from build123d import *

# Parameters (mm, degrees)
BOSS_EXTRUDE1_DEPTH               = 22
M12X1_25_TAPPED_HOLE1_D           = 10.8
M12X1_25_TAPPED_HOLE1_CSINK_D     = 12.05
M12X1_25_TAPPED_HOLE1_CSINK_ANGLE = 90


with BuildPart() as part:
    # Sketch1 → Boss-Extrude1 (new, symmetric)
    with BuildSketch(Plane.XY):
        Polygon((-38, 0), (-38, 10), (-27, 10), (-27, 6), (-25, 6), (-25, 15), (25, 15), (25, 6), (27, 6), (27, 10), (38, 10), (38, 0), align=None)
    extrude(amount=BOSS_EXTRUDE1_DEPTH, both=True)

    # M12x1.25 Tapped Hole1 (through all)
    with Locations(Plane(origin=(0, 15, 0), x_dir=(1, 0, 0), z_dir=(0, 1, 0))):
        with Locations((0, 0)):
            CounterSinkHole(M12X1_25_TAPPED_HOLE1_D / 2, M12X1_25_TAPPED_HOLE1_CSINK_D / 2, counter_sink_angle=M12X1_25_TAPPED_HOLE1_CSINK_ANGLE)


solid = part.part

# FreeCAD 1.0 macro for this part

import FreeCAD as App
import Part
import Sketcher
from FreeCAD import Vector


def add_polygon(sketch, points):
    """Adds a closed chain of lines whose ends are joined by coincident constraints."""
    first, n = sketch.GeometryCount, len(points)
    for a, b in zip(points, points[1:] + points[:1]):
        sketch.addGeometry(Part.LineSegment(App.Vector(*a, 0), App.Vector(*b, 0)), False)
    for i in range(n):
        sketch.addConstraint(Sketcher.Constraint("Coincident", first + i, 2, first + (i + 1) % n, 1))

doc = App.newDocument("Part")
body = doc.addObject("PartDesign::Body", "Body")

# Sketch on XY plane
sketch1 = doc.addObject("Sketcher::SketchObject", "Sketch")
body.addObject(sketch1)
sketch1.AttachmentSupport = (doc.XY_Plane, [""])
sketch1.MapMode = "FlatFace"
add_polygon(sketch1, [(-38, 10), (-38, 0), (38, 0), (38, 10), (27, 10), (27, 6), (25, 6), (25, 15), (-25, 15), (-25, 6), (-27, 6), (-27, 10)])  # lines 0-11
sketch1.addConstraint([
    Sketcher.Constraint("Vertical", 0),
    Sketcher.Constraint("Horizontal", 1),
    Sketcher.Constraint("Vertical", 2),
    Sketcher.Constraint("Horizontal", 3),
    Sketcher.Constraint("Vertical", 4),
    Sketcher.Constraint("Horizontal", 5),
    Sketcher.Constraint("Vertical", 6),
    Sketcher.Constraint("Horizontal", 7),
    Sketcher.Constraint("Vertical", 8),
    Sketcher.Constraint("Horizontal", 9),
    Sketcher.Constraint("Vertical", 10),
    Sketcher.Constraint("Horizontal", 11),
    Sketcher.Constraint("Symmetric", 0, 2, 1, 2, -1, 1),
    Sketcher.Constraint("Symmetric", 5, 2, 8, 2, -2),
    Sketcher.Constraint("Symmetric", 3, 2, 10, 2, -2),
    Sketcher.Constraint("DistanceX", 1, 1, 1, 2, 76.0),
    Sketcher.Constraint("DistanceX", 3, 2, 3, 1, 11.0),
    Sketcher.Constraint("DistanceX", 5, 2, 5, 1, 2.0),
    Sketcher.Constraint("DistanceY", 0, 2, 0, 1, 10.0),
    Sketcher.Constraint("DistanceY", 4, 2, 4, 1, 4.0),
    Sketcher.Constraint("DistanceY", 6, 1, 6, 2, 9.0),
])
pad1 = doc.addObject("PartDesign::Pad", "Pad")
body.addObject(pad1)
pad1.Profile = sketch1
pad1.Length = 44
pad1.Midplane = True

# Sketch on XZ plane
sketch2 = doc.addObject("Sketcher::SketchObject", "Sketch001")
body.addObject(sketch2)
sketch2.AttachmentSupport = (doc.XZ_Plane, [""])
sketch2.MapMode = "FlatFace"
sketch2.AttachmentOffset = App.Placement(Vector(0, 0, -15), App.Rotation())
sketch2.addGeometry(Part.Circle(Vector(0, 0, 0), Vector(0, 0, 1), 5), False)
sketch2.addConstraint([
    Sketcher.Constraint("Coincident", 0, 3, -1, 1),
    Sketcher.Constraint("Diameter", 0, 10.8),
])
doc.recompute()
hole = doc.addObject("PartDesign::Hole", "Hole")
body.addObject(hole)
hole.Profile = sketch2
hole.ThreadType = "None"
hole.Diameter = 10.8
hole.DepthType = "ThroughAll"
hole.HoleCutType = "Countersink"
hole.HoleCutDiameter = 12.05
hole.HoleCutCountersinkAngle = 90
hole.Reversed = True

doc.recompute()
